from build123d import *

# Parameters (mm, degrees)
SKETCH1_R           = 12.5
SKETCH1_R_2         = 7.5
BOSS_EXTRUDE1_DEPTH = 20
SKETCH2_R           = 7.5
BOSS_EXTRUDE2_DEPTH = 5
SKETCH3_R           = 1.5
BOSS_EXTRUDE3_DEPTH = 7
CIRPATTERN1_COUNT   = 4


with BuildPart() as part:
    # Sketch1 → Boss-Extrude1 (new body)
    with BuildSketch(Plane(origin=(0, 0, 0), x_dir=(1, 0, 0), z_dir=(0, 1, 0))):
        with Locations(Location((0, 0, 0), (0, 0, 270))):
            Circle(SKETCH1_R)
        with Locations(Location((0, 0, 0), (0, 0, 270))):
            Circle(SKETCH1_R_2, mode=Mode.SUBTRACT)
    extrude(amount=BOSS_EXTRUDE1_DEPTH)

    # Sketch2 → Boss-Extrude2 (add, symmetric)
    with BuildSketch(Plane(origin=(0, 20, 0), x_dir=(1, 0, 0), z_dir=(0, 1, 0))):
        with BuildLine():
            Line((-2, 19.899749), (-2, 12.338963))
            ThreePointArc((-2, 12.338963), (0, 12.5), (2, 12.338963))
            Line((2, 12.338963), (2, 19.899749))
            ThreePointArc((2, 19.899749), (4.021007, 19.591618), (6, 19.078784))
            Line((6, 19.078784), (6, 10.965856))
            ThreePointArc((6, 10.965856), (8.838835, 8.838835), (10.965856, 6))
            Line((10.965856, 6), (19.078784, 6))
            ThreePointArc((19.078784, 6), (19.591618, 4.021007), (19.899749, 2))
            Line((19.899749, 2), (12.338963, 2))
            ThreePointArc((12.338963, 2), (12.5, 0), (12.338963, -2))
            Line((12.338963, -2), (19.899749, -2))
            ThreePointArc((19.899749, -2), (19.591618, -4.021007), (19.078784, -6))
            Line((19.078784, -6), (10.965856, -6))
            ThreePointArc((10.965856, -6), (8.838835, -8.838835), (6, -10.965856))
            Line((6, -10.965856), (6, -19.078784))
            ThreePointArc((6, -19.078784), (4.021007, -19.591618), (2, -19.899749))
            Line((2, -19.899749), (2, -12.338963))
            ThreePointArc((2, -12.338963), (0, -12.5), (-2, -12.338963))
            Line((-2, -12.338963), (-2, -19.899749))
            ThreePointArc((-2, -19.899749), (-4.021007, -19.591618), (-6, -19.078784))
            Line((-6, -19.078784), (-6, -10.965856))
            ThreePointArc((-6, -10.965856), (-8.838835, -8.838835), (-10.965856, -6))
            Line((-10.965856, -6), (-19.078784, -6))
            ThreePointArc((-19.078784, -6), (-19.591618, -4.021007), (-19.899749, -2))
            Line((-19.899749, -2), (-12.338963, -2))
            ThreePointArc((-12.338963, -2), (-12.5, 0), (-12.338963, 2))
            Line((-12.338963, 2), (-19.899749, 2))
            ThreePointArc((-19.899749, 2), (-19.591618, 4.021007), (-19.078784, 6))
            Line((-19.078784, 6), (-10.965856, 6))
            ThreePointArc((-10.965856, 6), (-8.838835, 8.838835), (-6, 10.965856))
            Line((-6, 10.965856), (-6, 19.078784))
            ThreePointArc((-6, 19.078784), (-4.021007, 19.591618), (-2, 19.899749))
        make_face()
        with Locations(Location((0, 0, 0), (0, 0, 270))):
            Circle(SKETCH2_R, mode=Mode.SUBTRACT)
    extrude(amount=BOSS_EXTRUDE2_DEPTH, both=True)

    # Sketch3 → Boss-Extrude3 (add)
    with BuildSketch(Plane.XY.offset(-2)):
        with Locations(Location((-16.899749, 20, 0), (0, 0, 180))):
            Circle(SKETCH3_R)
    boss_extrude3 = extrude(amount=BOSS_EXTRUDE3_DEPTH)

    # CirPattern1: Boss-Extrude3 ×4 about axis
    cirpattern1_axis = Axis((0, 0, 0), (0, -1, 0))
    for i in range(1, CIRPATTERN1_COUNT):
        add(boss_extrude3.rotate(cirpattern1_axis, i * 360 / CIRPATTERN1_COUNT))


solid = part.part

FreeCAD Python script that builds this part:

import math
import FreeCAD as App
import Part
import Sketcher

doc = App.newDocument("Part")
body = doc.addObject("PartDesign::Body", "Body")

sketch1 = doc.addObject("Sketcher::SketchObject", "Sketch")
body.addObject(sketch1)
sketch1.AttachmentSupport = (doc.XZ_Plane, [""])
sketch1.MapMode = "FlatFace"
sketch1.addGeometry(Part.Circle(App.Vector(0, 0, 0), App.Vector(0, 0, 1), 12), False)
sketch1.addGeometry(Part.Circle(App.Vector(0, 0, 0), App.Vector(0, 0, 1), 8), False)
sketch1.addConstraint(Sketcher.Constraint("Coincident", 0, 3, -1, 1))
sketch1.addConstraint(Sketcher.Constraint("Coincident", 1, 3, -1, 1))
sketch1.addConstraint(Sketcher.Constraint("Diameter", 0, 25.0))
sketch1.addConstraint(Sketcher.Constraint("Diameter", 1, 15.0))
pad1 = doc.addObject("PartDesign::Pad", "Pad")
body.addObject(pad1)
pad1.Profile = sketch1
pad1.Length = 20
pad1.Reversed = True

sketch2 = doc.addObject("Sketcher::SketchObject", "Sketch001")
body.addObject(sketch2)
sketch2.AttachmentSupport = (doc.XZ_Plane, [""])
sketch2.MapMode = "FlatFace"
sketch2.AttachmentOffset = App.Placement(App.Vector(0, 0, -20), App.Rotation())
sketch2.addGeometry(Part.LineSegment(App.Vector(-2, -12.338963, 0), App.Vector(-2, -19.899749, 0)), False)
sketch2.addGeometry(Part.ArcOfCircle(Part.Circle(App.Vector(0.000012, 0.000053, 0), App.Vector(0, 0, 1), 20.000055), math.radians(-107.457591), math.radians(-95.73919)), False)
sketch2.addGeometry(Part.LineSegment(App.Vector(-6, -19.078784, 0), App.Vector(-6, -10.965856, 0)), False)
sketch2.addGeometry(Part.ArcOfCircle(Part.Circle(App.Vector(-0.000007, -0.000007, 0), App.Vector(0, 0, 1), 12.49999), math.radians(-151.314611), math.radians(-118.685389)), False)
sketch2.addGeometry(Part.LineSegment(App.Vector(-10.965856, -6, 0), App.Vector(-19.078784, -6, 0)), False)
sketch2.addGeometry(Part.ArcOfCircle(Part.Circle(App.Vector(0.000053, 0.000012, 0), App.Vector(0, 0, 1), 20.000055), math.radians(-174.26081), math.radians(-162.542409)), False)
sketch2.addGeometry(Part.LineSegment(App.Vector(-19.899749, -2, 0), App.Vector(-12.338963, -2, 0)), False)
sketch2.addGeometry(Part.ArcOfCircle(Part.Circle(App.Vector(0.000025, 0, 0), App.Vector(0, 0, 1), 12.500025), math.radians(170.793122), math.radians(189.206878)), False)
sketch2.addGeometry(Part.LineSegment(App.Vector(-12.338963, 2, 0), App.Vector(-19.899749, 2, 0)), False)
sketch2.addGeometry(Part.ArcOfCircle(Part.Circle(App.Vector(0.000053, -0.000012, 0), App.Vector(0, 0, 1), 20.000055), math.radians(162.542409), math.radians(174.26081)), False)
sketch2.addGeometry(Part.LineSegment(App.Vector(-19.078784, 6, 0), App.Vector(-10.965856, 6, 0)), False)
sketch2.addGeometry(Part.ArcOfCircle(Part.Circle(App.Vector(-0.000007, 0.000007, 0), App.Vector(0, 0, 1), 12.49999), math.radians(118.685389), math.radians(151.314611)), False)
sketch2.addGeometry(Part.LineSegment(App.Vector(-6, 10.965856, 0), App.Vector(-6, 19.078784, 0)), False)
sketch2.addGeometry(Part.ArcOfCircle(Part.Circle(App.Vector(0.000012, -0.000053, 0), App.Vector(0, 0, 1), 20.000055), math.radians(95.73919), math.radians(107.457591)), False)
sketch2.addGeometry(Part.LineSegment(App.Vector(-2, 19.899749, 0), App.Vector(-2, 12.338963, 0)), False)
sketch2.addGeometry(Part.ArcOfCircle(Part.Circle(App.Vector(0, -0.000025, 0), App.Vector(0, 0, 1), 12.500025), math.radians(80.793122), math.radians(99.206878)), False)
sketch2.addGeometry(Part.LineSegment(App.Vector(2, 12.338963, 0), App.Vector(2, 19.899749, 0)), False)
sketch2.addGeometry(Part.ArcOfCircle(Part.Circle(App.Vector(-0.000012, -0.000053, 0), App.Vector(0, 0, 1), 20.000055), math.radians(72.542409), math.radians(84.26081)), False)
sketch2.addGeometry(Part.LineSegment(App.Vector(6, 19.078784, 0), App.Vector(6, 10.965856, 0)), False)
sketch2.addGeometry(Part.ArcOfCircle(Part.Circle(App.Vector(0.000007, 0.000007, 0), App.Vector(0, 0, 1), 12.49999), math.radians(28.685389), math.radians(61.314611)), False)
sketch2.addGeometry(Part.LineSegment(App.Vector(10.965856, 6, 0), App.Vector(19.078784, 6, 0)), False)
sketch2.addGeometry(Part.ArcOfCircle(Part.Circle(App.Vector(-0.000053, -0.000012, 0), App.Vector(0, 0, 1), 20.000055), math.radians(5.73919), math.radians(17.457591)), False)
sketch2.addGeometry(Part.LineSegment(App.Vector(19.899749, 2, 0), App.Vector(12.338963, 2, 0)), False)
sketch2.addGeometry(Part.ArcOfCircle(Part.Circle(App.Vector(-0.000025, 0, 0), App.Vector(0, 0, 1), 12.500025), math.radians(-9.206878), math.radians(9.206878)), False)
sketch2.addGeometry(Part.LineSegment(App.Vector(12.338963, -2, 0), App.Vector(19.899749, -2, 0)), False)
sketch2.addGeometry(Part.ArcOfCircle(Part.Circle(App.Vector(-0.000053, 0.000012, 0), App.Vector(0, 0, 1), 20.000055), math.radians(-17.457591), math.radians(-5.73919)), False)
sketch2.addGeometry(Part.LineSegment(App.Vector(19.078784, -6, 0), App.Vector(10.965856, -6, 0)), False)
sketch2.addGeometry(Part.ArcOfCircle(Part.Circle(App.Vector(0.000007, -0.000007, 0), App.Vector(0, 0, 1), 12.49999), math.radians(-61.314611), math.radians(-28.685389)), False)
sketch2.addGeometry(Part.LineSegment(App.Vector(6, -10.965856, 0), App.Vector(6, -19.078784, 0)), False)
sketch2.addGeometry(Part.ArcOfCircle(Part.Circle(App.Vector(-0.000012, 0.000053, 0), App.Vector(0, 0, 1), 20.000055), math.radians(-84.26081), math.radians(-72.542409)), False)
sketch2.addGeometry(Part.LineSegment(App.Vector(2, -19.899749, 0), App.Vector(2, -12.338963, 0)), False)
sketch2.addGeometry(Part.ArcOfCircle(Part.Circle(App.Vector(0, 0.000025, 0), App.Vector(0, 0, 1), 12.500025), math.radians(-99.206878), math.radians(-80.793122)), False)
sketch2.addGeometry(Part.Circle(App.Vector(0, 0, 0), App.Vector(0, 0, 1), 7.5), False)
sketch2.addConstraint(Sketcher.Constraint("Coincident", 0, 2, 1, 2))
sketch2.addConstraint(Sketcher.Constraint("Coincident", 1, 1, 2, 1))
sketch2.addConstraint(Sketcher.Constraint("Coincident", 2, 2, 3, 2))
sketch2.addConstraint(Sketcher.Constraint("Coincident", 3, 1, 4, 1))
sketch2.addConstraint(Sketcher.Constraint("Coincident", 4, 2, 5, 2))
sketch2.addConstraint(Sketcher.Constraint("Coincident", 5, 1, 6, 1))
sketch2.addConstraint(Sketcher.Constraint("Coincident", 6, 2, 7, 2))
sketch2.addConstraint(Sketcher.Constraint("Coincident", 7, 1, 8, 1))
sketch2.addConstraint(Sketcher.Constraint("Coincident", 8, 2, 9, 2))
sketch2.addConstraint(Sketcher.Constraint("Coincident", 9, 1, 10, 1))
sketch2.addConstraint(Sketcher.Constraint("Coincident", 10, 2, 11, 2))
sketch2.addConstraint(Sketcher.Constraint("Coincident", 11, 1, 12, 1))
sketch2.addConstraint(Sketcher.Constraint("Coincident", 12, 2, 13, 2))
sketch2.addConstraint(Sketcher.Constraint("Coincident", 13, 1, 14, 1))
sketch2.addConstraint(Sketcher.Constraint("Coincident", 14, 2, 15, 2))
sketch2.addConstraint(Sketcher.Constraint("Coincident", 15, 1, 16, 1))
sketch2.addConstraint(Sketcher.Constraint("Coincident", 16, 2, 17, 2))
sketch2.addConstraint(Sketcher.Constraint("Coincident", 17, 1, 18, 1))
sketch2.addConstraint(Sketcher.Constraint("Coincident", 18, 2, 19, 2))
sketch2.addConstraint(Sketcher.Constraint("Coincident", 19, 1, 20, 1))
sketch2.addConstraint(Sketcher.Constraint("Coincident", 20, 2, 21, 2))
sketch2.addConstraint(Sketcher.Constraint("Coincident", 21, 1, 22, 1))
sketch2.addConstraint(Sketcher.Constraint("Coincident", 22, 2, 23, 2))
sketch2.addConstraint(Sketcher.Constraint("Coincident", 23, 1, 24, 1))
sketch2.addConstraint(Sketcher.Constraint("Coincident", 24, 2, 25, 2))
sketch2.addConstraint(Sketcher.Constraint("Coincident", 25, 1, 26, 1))
sketch2.addConstraint(Sketcher.Constraint("Coincident", 26, 2, 27, 2))
sketch2.addConstraint(Sketcher.Constraint("Coincident", 27, 1, 28, 1))
sketch2.addConstraint(Sketcher.Constraint("Coincident", 28, 2, 29, 2))
sketch2.addConstraint(Sketcher.Constraint("Coincident", 29, 1, 30, 1))
sketch2.addConstraint(Sketcher.Constraint("Coincident", 30, 2, 31, 2))
sketch2.addConstraint(Sketcher.Constraint("Coincident", 31, 1, 0, 1))
sketch2.addConstraint(Sketcher.Constraint("Vertical", 0))
sketch2.addConstraint(Sketcher.Constraint("Vertical", 2))
sketch2.addConstraint(Sketcher.Constraint("Horizontal", 4))
sketch2.addConstraint(Sketcher.Constraint("Horizontal", 6))
sketch2.addConstraint(Sketcher.Constraint("Horizontal", 8))
sketch2.addConstraint(Sketcher.Constraint("Horizontal", 10))
sketch2.addConstraint(Sketcher.Constraint("Vertical", 12))
sketch2.addConstraint(Sketcher.Constraint("Vertical", 14))
sketch2.addConstraint(Sketcher.Constraint("Vertical", 16))
sketch2.addConstraint(Sketcher.Constraint("Vertical", 18))
sketch2.addConstraint(Sketcher.Constraint("Horizontal", 20))
sketch2.addConstraint(Sketcher.Constraint("Horizontal", 22))
sketch2.addConstraint(Sketcher.Constraint("Horizontal", 24))
sketch2.addConstraint(Sketcher.Constraint("Horizontal", 26))
sketch2.addConstraint(Sketcher.Constraint("Vertical", 28))
sketch2.addConstraint(Sketcher.Constraint("Vertical", 30))
sketch2.addConstraint(Sketcher.Constraint("Coincident", 32, 3, -1, 1))
sketch2.addConstraint(Sketcher.Constraint("Equal", 1, 5))
sketch2.addConstraint(Sketcher.Constraint("Equal", 5, 9))
sketch2.addConstraint(Sketcher.Constraint("Equal", 3, 11))
sketch2.addConstraint(Sketcher.Constraint("Equal", 9, 13))
sketch2.addConstraint(Sketcher.Constraint("Equal", 7, 15))
sketch2.addConstraint(Sketcher.Constraint("Equal", 13, 17))
sketch2.addConstraint(Sketcher.Constraint("Equal", 11, 19))
sketch2.addConstraint(Sketcher.Constraint("Equal", 17, 21))
sketch2.addConstraint(Sketcher.Constraint("Equal", 15, 23))
sketch2.addConstraint(Sketcher.Constraint("Equal", 21, 25))
sketch2.addConstraint(Sketcher.Constraint("Equal", 19, 27))
sketch2.addConstraint(Sketcher.Constraint("Equal", 25, 29))
sketch2.addConstraint(Sketcher.Constraint("Equal", 23, 31))
sketch2.addConstraint(Sketcher.Constraint("Symmetric", 1, 3, 17, 3, -1, 1))
sketch2.addConstraint(Sketcher.Constraint("Symmetric", 3, 3, 19, 3, -1, 1))
sketch2.addConstraint(Sketcher.Constraint("Symmetric", 5, 3, 21, 3, -1, 1))
sketch2.addConstraint(Sketcher.Constraint("Symmetric", 7, 3, 23, 3, -1, 1))
sketch2.addConstraint(Sketcher.Constraint("Symmetric", 9, 3, 25, 3, -1, 1))
sketch2.addConstraint(Sketcher.Constraint("Symmetric", 11, 3, 27, 3, -1, 1))
sketch2.addConstraint(Sketcher.Constraint("Symmetric", 13, 3, 29, 3, -1, 1))
sketch2.addConstraint(Sketcher.Constraint("Symmetric", 15, 3, 31, 3, -1, 1))
sketch2.addConstraint(Sketcher.Constraint("Symmetric", 13, 3, 17, 3, -2))
sketch2.addConstraint(Sketcher.Constraint("Symmetric", 11, 3, 19, 3, -2))
sketch2.addConstraint(Sketcher.Constraint("Symmetric", 9, 3, 21, 3, -2))
sketch2.addConstraint(Sketcher.Constraint("Symmetric", 14, 2, 15, 1, -2))
sketch2.addConstraint(Sketcher.Constraint("Symmetric", 7, 1, 22, 2, -2))
sketch2.addConstraint(Sketcher.Constraint("Horizontal", 12, 2, 17, 1))
sketch2.addConstraint(Sketcher.Constraint("Horizontal", 10, 2, 19, 1))
sketch2.addConstraint(Sketcher.Constraint("Horizontal", 6, 2, 23, 1))
sketch2.addConstraint(Sketcher.Constraint("Horizontal", 4, 2, 25, 1))
sketch2.addConstraint(Sketcher.Constraint("Horizontal", 2, 2, 27, 1))
sketch2.addConstraint(Sketcher.Constraint("Horizontal", 0, 2, 29, 1))
sketch2.addConstraint(Sketcher.Constraint("Vertical", 6, 2, 7, 1))
sketch2.addConstraint(Sketcher.Constraint("Vertical", 4, 2, 9, 1))
sketch2.addConstraint(Sketcher.Constraint("Vertical", 2, 2, 11, 1))
sketch2.addConstraint(Sketcher.Constraint("Vertical", 0, 2, 13, 1))
sketch2.addConstraint(Sketcher.Constraint("Equal", 24, 0))
sketch2.addConstraint(Sketcher.Constraint("Equal", 26, 2))
sketch2.addConstraint(Sketcher.Constraint("Diameter", 32, 15.0))
sketch2.addConstraint(Sketcher.Constraint("DistanceX", 0, 2, -1, 1, 2.0))
sketch2.addConstraint(Sketcher.Constraint("DistanceX", 1, 1, -1, 1, 6.0))
sketch2.addConstraint(Sketcher.Constraint("DistanceY", 3, 1, -1, 1, 6.0))
sketch2.addConstraint(Sketcher.Constraint("DistanceY", 5, 1, -1, 1, 2.0))
sketch2.addConstraint(Sketcher.Constraint("Radius", 3, 12.49999))
sketch2.addConstraint(Sketcher.Constraint("Radius", 1, 20.000055))
sketch2.addConstraint(Sketcher.Constraint("Radius", 7, 12.500025))
sketch2.addConstraint(Sketcher.Constraint("DistanceX", 4, 2, 4, 1, 8.112928))
sketch2.addConstraint(Sketcher.Constraint("DistanceX", 6, 1, 6, 2, 7.560786))
sketch2.addConstraint(Sketcher.Constraint("DistanceY", 0, 2, -1, 1, 19.899749))
sketch2.addConstraint(Sketcher.Constraint("DistanceX", 5, 1, -1, 1, 19.899749))
sketch2.addConstraint(Sketcher.Constraint("DistanceY", 0, 2, 3, 3, 19.899742))
sketch2.addConstraint(Sketcher.Constraint("DistanceY", 1, 1, 17, 3, 19.078731))
pad2 = doc.addObject("PartDesign::Pad", "Pad001")
body.addObject(pad2)
pad2.Profile = sketch2
pad2.Length = 10
pad2.Midplane = True

sketch3 = doc.addObject("Sketcher::SketchObject", "Sketch002")
body.addObject(sketch3)
sketch3.AttachmentSupport = (doc.XY_Plane, [""])
sketch3.MapMode = "FlatFace"
sketch3.AttachmentOffset = App.Placement(App.Vector(0, 0, -2), App.Rotation())
sketch3.addGeometry(Part.Circle(App.Vector(-16.9, 20, 0), App.Vector(0, 0, 1), 1.5), False)
sketch3.addConstraint(Sketcher.Constraint("Diameter", 0, 3.0))
sketch3.addConstraint(Sketcher.Constraint("DistanceY", -1, 1, 0, 3, 20.0))
sketch3.addConstraint(Sketcher.Constraint("DistanceX", 0, 3, -1, 1, 16.899749))
pad3 = doc.addObject("PartDesign::Pad", "Pad002")
body.addObject(pad3)
pad3.Profile = sketch3
pad3.Length = 7
doc.recompute()

polarpattern = doc.addObject("PartDesign::PolarPattern", "PolarPattern")
body.addObject(polarpattern)
polarpattern.Originals = [pad3]
polarpattern.Axis = (doc.Y_Axis, [""])
polarpattern.Angle = 360
polarpattern.Occurrences = 4
body.Tip = polarpattern

doc.recompute()
